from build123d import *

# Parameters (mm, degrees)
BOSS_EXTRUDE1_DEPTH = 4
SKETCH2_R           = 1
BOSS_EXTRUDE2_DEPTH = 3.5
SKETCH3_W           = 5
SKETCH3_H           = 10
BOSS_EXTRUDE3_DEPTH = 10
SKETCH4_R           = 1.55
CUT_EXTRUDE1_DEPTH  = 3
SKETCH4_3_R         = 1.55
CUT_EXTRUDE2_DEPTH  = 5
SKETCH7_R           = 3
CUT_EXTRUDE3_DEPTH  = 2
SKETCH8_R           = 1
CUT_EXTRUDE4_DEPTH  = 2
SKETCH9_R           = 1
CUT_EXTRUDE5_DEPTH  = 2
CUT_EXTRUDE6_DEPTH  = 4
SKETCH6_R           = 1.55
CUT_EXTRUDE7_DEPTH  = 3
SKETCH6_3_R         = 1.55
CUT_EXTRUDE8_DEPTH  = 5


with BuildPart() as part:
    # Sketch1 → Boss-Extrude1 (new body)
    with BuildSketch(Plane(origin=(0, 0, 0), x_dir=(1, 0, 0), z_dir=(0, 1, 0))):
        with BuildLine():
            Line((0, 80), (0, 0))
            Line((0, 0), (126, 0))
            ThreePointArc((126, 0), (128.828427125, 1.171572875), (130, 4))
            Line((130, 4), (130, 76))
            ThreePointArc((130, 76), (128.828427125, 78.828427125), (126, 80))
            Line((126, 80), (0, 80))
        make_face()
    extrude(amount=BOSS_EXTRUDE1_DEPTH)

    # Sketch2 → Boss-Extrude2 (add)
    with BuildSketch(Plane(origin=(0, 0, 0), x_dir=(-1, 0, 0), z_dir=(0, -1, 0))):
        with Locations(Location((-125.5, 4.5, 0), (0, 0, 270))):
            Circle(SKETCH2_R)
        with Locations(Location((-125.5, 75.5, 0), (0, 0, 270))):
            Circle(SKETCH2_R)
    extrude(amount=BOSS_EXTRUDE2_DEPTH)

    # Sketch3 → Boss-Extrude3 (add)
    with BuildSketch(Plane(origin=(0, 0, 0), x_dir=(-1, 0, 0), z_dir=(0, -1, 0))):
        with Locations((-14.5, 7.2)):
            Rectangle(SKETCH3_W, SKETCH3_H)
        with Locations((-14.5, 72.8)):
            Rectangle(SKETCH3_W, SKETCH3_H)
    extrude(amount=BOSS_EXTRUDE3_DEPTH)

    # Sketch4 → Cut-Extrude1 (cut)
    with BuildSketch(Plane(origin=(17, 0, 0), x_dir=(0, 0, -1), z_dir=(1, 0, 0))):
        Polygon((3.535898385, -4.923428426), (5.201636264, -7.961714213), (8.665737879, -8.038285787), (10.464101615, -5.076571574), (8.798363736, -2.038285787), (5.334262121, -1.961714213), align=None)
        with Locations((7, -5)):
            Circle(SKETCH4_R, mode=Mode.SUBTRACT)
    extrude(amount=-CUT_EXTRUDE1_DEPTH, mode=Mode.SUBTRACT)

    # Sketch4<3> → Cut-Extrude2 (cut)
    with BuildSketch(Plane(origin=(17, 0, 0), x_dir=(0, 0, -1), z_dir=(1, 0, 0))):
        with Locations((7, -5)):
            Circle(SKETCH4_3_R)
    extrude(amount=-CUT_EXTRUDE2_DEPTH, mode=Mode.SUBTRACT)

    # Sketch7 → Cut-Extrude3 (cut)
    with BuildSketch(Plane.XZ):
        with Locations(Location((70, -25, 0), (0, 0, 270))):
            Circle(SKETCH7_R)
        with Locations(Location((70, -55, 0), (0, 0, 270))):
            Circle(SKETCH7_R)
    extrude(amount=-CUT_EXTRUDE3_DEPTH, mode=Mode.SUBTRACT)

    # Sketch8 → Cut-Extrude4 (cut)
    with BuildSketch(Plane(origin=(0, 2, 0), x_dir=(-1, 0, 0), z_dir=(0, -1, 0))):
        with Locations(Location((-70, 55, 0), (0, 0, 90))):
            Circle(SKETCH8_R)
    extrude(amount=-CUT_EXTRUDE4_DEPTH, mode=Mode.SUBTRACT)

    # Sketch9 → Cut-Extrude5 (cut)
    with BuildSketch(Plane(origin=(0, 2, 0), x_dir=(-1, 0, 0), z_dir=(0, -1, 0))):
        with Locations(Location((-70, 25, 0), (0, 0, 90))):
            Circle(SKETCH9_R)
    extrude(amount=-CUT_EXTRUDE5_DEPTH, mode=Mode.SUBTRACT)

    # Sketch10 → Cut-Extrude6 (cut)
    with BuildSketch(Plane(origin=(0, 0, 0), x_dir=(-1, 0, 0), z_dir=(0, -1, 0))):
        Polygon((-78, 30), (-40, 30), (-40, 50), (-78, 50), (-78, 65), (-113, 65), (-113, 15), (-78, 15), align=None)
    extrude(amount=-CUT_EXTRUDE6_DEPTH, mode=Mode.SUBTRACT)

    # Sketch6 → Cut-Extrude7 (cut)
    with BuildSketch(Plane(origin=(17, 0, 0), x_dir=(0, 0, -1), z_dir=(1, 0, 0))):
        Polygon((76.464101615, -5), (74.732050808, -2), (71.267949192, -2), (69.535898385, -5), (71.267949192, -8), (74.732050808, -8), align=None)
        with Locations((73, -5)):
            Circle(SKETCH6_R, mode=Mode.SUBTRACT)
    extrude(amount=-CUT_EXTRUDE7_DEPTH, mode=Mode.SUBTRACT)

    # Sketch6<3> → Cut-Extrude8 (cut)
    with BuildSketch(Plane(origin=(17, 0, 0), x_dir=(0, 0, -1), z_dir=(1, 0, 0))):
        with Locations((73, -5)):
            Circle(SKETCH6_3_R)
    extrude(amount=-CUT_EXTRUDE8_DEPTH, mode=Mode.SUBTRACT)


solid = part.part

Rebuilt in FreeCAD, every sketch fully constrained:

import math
import FreeCAD as App
import Part
import Sketcher

V = App.Vector
Q = App.Units.Quantity

doc = App.newDocument("Part")
body = doc.addObject("PartDesign::Body", "Body")

sketch1 = body.newObject("Sketcher::SketchObject", "Sketch")
sketch1.AttachmentSupport = (doc.getObject("XZ_Plane"), [""])
sketch1.MapMode = "FlatFace"
sketch1.addGeometry([
    Part.LineSegment(V(0, -80, 0), V(0, 0, 0)),
    Part.LineSegment(V(0, 0, 0), V(126, 0, 0)),
    Part.ArcOfCircle(Part.Circle(V(126, -4, 0), V(0, 0, 1), 4), math.radians(0), math.radians(90)),
    Part.LineSegment(V(130, -4, 0), V(130, -76, 0)),
    Part.ArcOfCircle(Part.Circle(V(126, -76, 0), V(0, 0, 1), 4), math.radians(-90), math.radians(0)),
    Part.LineSegment(V(126, -80, 0), V(0, -80, 0)),
], False)
sketch1.addConstraint([
    Sketcher.Constraint("Coincident", 0, 2, 1, 1),
    Sketcher.Constraint("Tangent", 1, 2, 2, 2),
    Sketcher.Constraint("Tangent", 2, 1, 3, 1),
    Sketcher.Constraint("Tangent", 3, 2, 4, 2),
    Sketcher.Constraint("Tangent", 4, 1, 5, 1),
    Sketcher.Constraint("Coincident", 5, 2, 0, 1),
    Sketcher.Constraint("Vertical", 0),
    Sketcher.Constraint("Horizontal", 1),
    Sketcher.Constraint("Vertical", 3),
    Sketcher.Constraint("Horizontal", 5),
    Sketcher.Constraint("Coincident", 0, 2, -1, 1),
    Sketcher.Constraint("Equal", 2, 4),
    Sketcher.Constraint("Radius", 2, Q("4 mm")),
    Sketcher.Constraint("DistanceX", 1, 1, 1, 2, Q("126 mm")),
    Sketcher.Constraint("DistanceY", 0, 1, 0, 2, Q("80 mm")),
])
pad1 = body.newObject("PartDesign::Pad", "Pad")
pad1.Profile = sketch1
pad1.Length = 4
pad1.Reversed = True

sketch2 = body.newObject("Sketcher::SketchObject", "Sketch001")
sketch2.AttachmentSupport = (doc.getObject("XZ_Plane"), [""])
sketch2.MapMode = "FlatFace"
sketch2.addGeometry([
    Part.Circle(V(125.5, -4.5, 0), V(0, 0, 1), 1),
    Part.Circle(V(125.5, -75.5, 0), V(0, 0, 1), 1),
], False)
sketch2.addConstraint([
    Sketcher.Constraint("Equal", 0, 1),
    Sketcher.Constraint("Vertical", 0, 3, 1, 3),
    Sketcher.Constraint("Diameter", 0, Q("2 mm")),
    Sketcher.Constraint("DistanceY", 1, 3, 0, 3, Q("71 mm")),
    Sketcher.Constraint("DistanceX", -1, 1, 0, 3, Q("125.5 mm")),
    Sketcher.Constraint("DistanceY", 0, 3, -1, 1, Q("4.5 mm")),
])
pad2 = body.newObject("PartDesign::Pad", "Pad001")
pad2.Profile = sketch2
pad2.Length = 3.5

sketch3 = body.newObject("Sketcher::SketchObject", "Sketch002")
sketch3.AttachmentSupport = (doc.getObject("XZ_Plane"), [""])
sketch3.MapMode = "FlatFace"
sketch3.addGeometry([
    Part.LineSegment(V(17, -12, 0), V(17, -2, 0)),
    Part.LineSegment(V(17, -2, 0), V(12, -2, 0)),
    Part.LineSegment(V(12, -2, 0), V(12, -12, 0)),
    Part.LineSegment(V(12, -12, 0), V(17, -12, 0)),
    Part.LineSegment(V(17, -78, 0), V(17, -68, 0)),
    Part.LineSegment(V(17, -68, 0), V(12, -68, 0)),
    Part.LineSegment(V(12, -68, 0), V(12, -78, 0)),
    Part.LineSegment(V(12, -78, 0), V(17, -78, 0)),
], False)
sketch3.addConstraint([
    Sketcher.Constraint("Coincident", 0, 2, 1, 1),
    Sketcher.Constraint("Coincident", 1, 2, 2, 1),
    Sketcher.Constraint("Coincident", 2, 2, 3, 1),
    Sketcher.Constraint("Coincident", 3, 2, 0, 1),
    Sketcher.Constraint("Coincident", 4, 2, 5, 1),
    Sketcher.Constraint("Coincident", 5, 2, 6, 1),
    Sketcher.Constraint("Coincident", 6, 2, 7, 1),
    Sketcher.Constraint("Coincident", 7, 2, 4, 1),
    Sketcher.Constraint("Vertical", 0),
    Sketcher.Constraint("Horizontal", 1),
    Sketcher.Constraint("Vertical", 2),
    Sketcher.Constraint("Horizontal", 3),
    Sketcher.Constraint("Vertical", 4),
    Sketcher.Constraint("Horizontal", 5),
    Sketcher.Constraint("Vertical", 6),
    Sketcher.Constraint("Horizontal", 7),
    Sketcher.Constraint("Vertical", 3, 2, 4, 2),
    Sketcher.Constraint("Vertical", 2, 2, 5, 2),
    Sketcher.Constraint("Equal", 2, 4),
    Sketcher.Constraint("DistanceX", 1, 2, 1, 1, Q("5 mm")),
    Sketcher.Constraint("DistanceY", 0, 1, 0, 2, Q("10 mm")),
    Sketcher.Constraint("DistanceX", -1, 1, 0, 2, Q("17 mm")),
    Sketcher.Constraint("DistanceY", 0, 2, -1, 1, Q("2.2 mm")),
    Sketcher.Constraint("DistanceY", 4, 2, -1, 1, Q("67.8 mm")),
])
pad3 = body.newObject("PartDesign::Pad", "Pad002")
pad3.Profile = sketch3
pad3.Length = 10

sketch4 = body.newObject("Sketcher::SketchObject", "Sketch003")
sketch4.AttachmentSupport = (doc.getObject("YZ_Plane"), [""])
sketch4.MapMode = "FlatFace"
sketch4.AttachmentOffset = App.Placement(V(0, 0, 17), App.Rotation())
sketch4.addGeometry([
    Part.LineSegment(V(-4.9, -3.5, 0), V(-8, -5.2, 0)),
    Part.LineSegment(V(-8, -5.2, 0), V(-8, -8.7, 0)),
    Part.LineSegment(V(-8, -8.7, 0), V(-5.1, -10.5, 0)),
    Part.LineSegment(V(-5.1, -10.5, 0), V(-2, -8.8, 0)),
    Part.LineSegment(V(-2, -8.8, 0), V(-2, -5.3, 0)),
    Part.LineSegment(V(-2, -5.3, 0), V(-4.9, -3.5, 0)),
    Part.Circle(V(-5, -7, 0), V(0, 0, 1), 1.6),
], False)
sketch4.addConstraint([
    Sketcher.Constraint("Coincident", 0, 2, 1, 1),
    Sketcher.Constraint("Coincident", 1, 2, 2, 1),
    Sketcher.Constraint("Coincident", 2, 2, 3, 1),
    Sketcher.Constraint("Coincident", 3, 2, 4, 1),
    Sketcher.Constraint("Coincident", 4, 2, 5, 1),
    Sketcher.Constraint("Coincident", 5, 2, 0, 1),
    Sketcher.Constraint("Parallel", 0, 3),
    Sketcher.Constraint("Parallel", 1, 4),
    Sketcher.Constraint("Parallel", 2, 5),
    Sketcher.Constraint("Equal", 0, 1),
    Sketcher.Constraint("Equal", 1, 2),
    Sketcher.Constraint("Equal", 2, 3),
    Sketcher.Constraint("Diameter", 6, Q("3.1 mm")),
    Sketcher.Constraint("DistanceX", 6, 3, -1, 1, Q("5 mm")),
    Sketcher.Constraint("DistanceY", 6, 3, -1, 1, Q("7 mm")),
    Sketcher.Constraint("DistanceX", 1, 2, 3, 2, Q("6 mm")),
    Sketcher.Constraint("DistanceY", 2, 2, -1, 1, Q("10.464102 mm")),
    Sketcher.Constraint("DistanceY", 5, 2, -1, 1, Q("3.535898 mm")),
    Sketcher.Constraint("DistanceY", 1, 2, 0, 2, Q("3.464102 mm")),
    Sketcher.Constraint("DistanceX", 2, 2, -1, 1, Q("5.076572 mm")),
    Sketcher.Constraint("DistanceX", 5, 2, -1, 1, Q("4.923428 mm")),
])
pocket1 = body.newObject("PartDesign::Pocket", "Pocket")
pocket1.Profile = sketch4
pocket1.Length = 3

sketch5 = body.newObject("Sketcher::SketchObject", "Sketch004")
sketch5.AttachmentSupport = (doc.getObject("YZ_Plane"), [""])
sketch5.MapMode = "FlatFace"
sketch5.AttachmentOffset = App.Placement(V(0, 0, 17), App.Rotation())
sketch5.addGeometry(Part.Circle(V(-5, -7, 0), V(0, 0, 1), 1.6), False)
sketch5.addConstraint([
    Sketcher.Constraint("Diameter", 0, Q("3.1 mm")),
    Sketcher.Constraint("DistanceX", 0, 3, -1, 1, Q("5 mm")),
    Sketcher.Constraint("DistanceY", 0, 3, -1, 1, Q("7 mm")),
])
pocket2 = body.newObject("PartDesign::Pocket", "Pocket001")
pocket2.Profile = sketch5
pocket2.Length = 5

sketch6 = body.newObject("Sketcher::SketchObject", "Sketch005")
sketch6.AttachmentSupport = (doc.getObject("XZ_Plane"), [""])
sketch6.MapMode = "FlatFace"
sketch6.addGeometry([
    Part.Circle(V(70, -25, 0), V(0, 0, 1), 3),
    Part.Circle(V(70, -55, 0), V(0, 0, 1), 3),
], False)
sketch6.addConstraint([
    Sketcher.Constraint("Equal", 0, 1),
    Sketcher.Constraint("Vertical", 0, 3, 1, 3),
    Sketcher.Constraint("Diameter", 0, Q("6 mm")),
    Sketcher.Constraint("DistanceX", -1, 1, 0, 3, Q("70 mm")),
    Sketcher.Constraint("DistanceY", 0, 3, -1, 1, Q("25 mm")),
    Sketcher.Constraint("DistanceY", 1, 3, -1, 1, Q("55 mm")),
])
pocket3 = body.newObject("PartDesign::Pocket", "Pocket002")
pocket3.Profile = sketch6
pocket3.Length = 2

sketch7 = body.newObject("Sketcher::SketchObject", "Sketch006")
sketch7.AttachmentSupport = (doc.getObject("XZ_Plane"), [""])
sketch7.MapMode = "FlatFace"
sketch7.AttachmentOffset = App.Placement(V(0, 0, -2), App.Rotation())
sketch7.addGeometry(Part.Circle(V(70, -55, 0), V(0, 0, 1), 1), False)
sketch7.addConstraint([
    Sketcher.Constraint("Diameter", 0, Q("2 mm")),
    Sketcher.Constraint("DistanceX", -1, 1, 0, 3, Q("70 mm")),
    Sketcher.Constraint("DistanceY", 0, 3, -1, 1, Q("55 mm")),
])
pocket4 = body.newObject("PartDesign::Pocket", "Pocket003")
pocket4.Profile = sketch7
pocket4.Length = 2

sketch8 = body.newObject("Sketcher::SketchObject", "Sketch007")
sketch8.AttachmentSupport = (doc.getObject("XZ_Plane"), [""])
sketch8.MapMode = "FlatFace"
sketch8.AttachmentOffset = App.Placement(V(0, 0, -2), App.Rotation())
sketch8.addGeometry(Part.Circle(V(70, -25, 0), V(0, 0, 1), 1), False)
sketch8.addConstraint([
    Sketcher.Constraint("Diameter", 0, Q("2 mm")),
    Sketcher.Constraint("DistanceX", -1, 1, 0, 3, Q("70 mm")),
    Sketcher.Constraint("DistanceY", 0, 3, -1, 1, Q("25 mm")),
])
pocket5 = body.newObject("PartDesign::Pocket", "Pocket004")
pocket5.Profile = sketch8
pocket5.Length = 2

sketch9 = body.newObject("Sketcher::SketchObject", "Sketch008")
sketch9.AttachmentSupport = (doc.getObject("XZ_Plane"), [""])
sketch9.MapMode = "FlatFace"
sketch9.addGeometry([
    Part.LineSegment(V(78, -30, 0), V(40, -30, 0)),
    Part.LineSegment(V(40, -30, 0), V(40, -50, 0)),
    Part.LineSegment(V(40, -50, 0), V(78, -50, 0)),
    Part.LineSegment(V(78, -50, 0), V(78, -65, 0)),
    Part.LineSegment(V(78, -65, 0), V(113, -65, 0)),
    Part.LineSegment(V(113, -65, 0), V(113, -15, 0)),
    Part.LineSegment(V(113, -15, 0), V(78, -15, 0)),
    Part.LineSegment(V(78, -15, 0), V(78, -30, 0)),
], False)
sketch9.addConstraint([
    Sketcher.Constraint("Coincident", 0, 2, 1, 1),
    Sketcher.Constraint("Coincident", 1, 2, 2, 1),
    Sketcher.Constraint("Coincident", 2, 2, 3, 1),
    Sketcher.Constraint("Coincident", 3, 2, 4, 1),
    Sketcher.Constraint("Coincident", 4, 2, 5, 1),
    Sketcher.Constraint("Coincident", 5, 2, 6, 1),
    Sketcher.Constraint("Coincident", 6, 2, 7, 1),
    Sketcher.Constraint("Coincident", 7, 2, 0, 1),
    Sketcher.Constraint("Horizontal", 0),
    Sketcher.Constraint("Vertical", 1),
    Sketcher.Constraint("Horizontal", 2),
    Sketcher.Constraint("Vertical", 3),
    Sketcher.Constraint("Horizontal", 4),
    Sketcher.Constraint("Vertical", 5),
    Sketcher.Constraint("Horizontal", 6),
    Sketcher.Constraint("Vertical", 7),
    Sketcher.Constraint("Vertical", 3, 2, 6, 2),
    Sketcher.Constraint("Equal", 3, 7),
    Sketcher.Constraint("DistanceX", 0, 2, 0, 1, Q("38 mm")),
    Sketcher.Constraint("DistanceX", 4, 1, 4, 2, Q("35 mm")),
    Sketcher.Constraint("DistanceY", 1, 2, 1, 1, Q("20 mm")),
    Sketcher.Constraint("DistanceY", 3, 2, 3, 1, Q("15 mm")),
    Sketcher.Constraint("DistanceX", -1, 1, 0, 2, Q("40 mm")),
    Sketcher.Constraint("DistanceY", 0, 2, -1, 1, Q("30 mm")),
])
pocket6 = body.newObject("PartDesign::Pocket", "Pocket005")
pocket6.Profile = sketch9
pocket6.Length = 4

sketch10 = body.newObject("Sketcher::SketchObject", "Sketch009")
sketch10.AttachmentSupport = (doc.getObject("YZ_Plane"), [""])
sketch10.MapMode = "FlatFace"
sketch10.AttachmentOffset = App.Placement(V(0, 0, 17), App.Rotation())
sketch10.addGeometry([
    Part.LineSegment(V(-5, -76.5, 0), V(-2, -74.7, 0)),
    Part.LineSegment(V(-2, -74.7, 0), V(-2, -71.3, 0)),
    Part.LineSegment(V(-2, -71.3, 0), V(-5, -69.5, 0)),
    Part.LineSegment(V(-5, -69.5, 0), V(-8, -71.3, 0)),
    Part.LineSegment(V(-8, -71.3, 0), V(-8, -74.7, 0)),
    Part.LineSegment(V(-8, -74.7, 0), V(-5, -76.5, 0)),
    Part.Circle(V(-5, -73, 0), V(0, 0, 1), 1.6),
], False)
sketch10.addConstraint([
    Sketcher.Constraint("Coincident", 0, 2, 1, 1),
    Sketcher.Constraint("Coincident", 1, 2, 2, 1),
    Sketcher.Constraint("Coincident", 2, 2, 3, 1),
    Sketcher.Constraint("Coincident", 3, 2, 4, 1),
    Sketcher.Constraint("Coincident", 4, 2, 5, 1),
    Sketcher.Constraint("Coincident", 5, 2, 0, 1),
    Sketcher.Constraint("Vertical", 1),
    Sketcher.Constraint("Vertical", 4),
    Sketcher.Constraint("Parallel", 0, 3),
    Sketcher.Constraint("Parallel", 2, 5),
    Sketcher.Constraint("Horizontal", 1, 2, 3, 2),
    Sketcher.Constraint("Horizontal", 0, 2, 4, 2),
    Sketcher.Constraint("Vertical", 6, 3, 2, 2),
    Sketcher.Constraint("Vertical", 2, 2, 5, 2),
    Sketcher.Constraint("Diameter", 6, Q("3.1 mm")),
    Sketcher.Constraint("Angle", 0, Q("30 deg")),
    Sketcher.Constraint("DistanceX", 6, 3, -1, 1, Q("5 mm")),
    Sketcher.Constraint("DistanceY", 6, 3, -1, 1, Q("73 mm")),
    Sketcher.Constraint("DistanceX", 0, 2, -1, 1, Q("2 mm")),
    Sketcher.Constraint("DistanceY", 1, 1, 1, 2, Q("3.464102 mm")),
    Sketcher.Constraint("DistanceY", 2, 2, -1, 1, Q("69.535898 mm")),
])
pocket7 = body.newObject("PartDesign::Pocket", "Pocket006")
pocket7.Profile = sketch10
pocket7.Length = 3

sketch11 = body.newObject("Sketcher::SketchObject", "Sketch010")
sketch11.AttachmentSupport = (doc.getObject("YZ_Plane"), [""])
sketch11.MapMode = "FlatFace"
sketch11.AttachmentOffset = App.Placement(V(0, 0, 17), App.Rotation())
sketch11.addGeometry(Part.Circle(V(-5, -73, 0), V(0, 0, 1), 1.6), False)
sketch11.addConstraint([
    Sketcher.Constraint("Diameter", 0, Q("3.1 mm")),
    Sketcher.Constraint("DistanceX", 0, 3, -1, 1, Q("5 mm")),
    Sketcher.Constraint("DistanceY", 0, 3, -1, 1, Q("73 mm")),
])
pocket8 = body.newObject("PartDesign::Pocket", "Pocket007")
pocket8.Profile = sketch11
pocket8.Length = 5

doc.recompute()
